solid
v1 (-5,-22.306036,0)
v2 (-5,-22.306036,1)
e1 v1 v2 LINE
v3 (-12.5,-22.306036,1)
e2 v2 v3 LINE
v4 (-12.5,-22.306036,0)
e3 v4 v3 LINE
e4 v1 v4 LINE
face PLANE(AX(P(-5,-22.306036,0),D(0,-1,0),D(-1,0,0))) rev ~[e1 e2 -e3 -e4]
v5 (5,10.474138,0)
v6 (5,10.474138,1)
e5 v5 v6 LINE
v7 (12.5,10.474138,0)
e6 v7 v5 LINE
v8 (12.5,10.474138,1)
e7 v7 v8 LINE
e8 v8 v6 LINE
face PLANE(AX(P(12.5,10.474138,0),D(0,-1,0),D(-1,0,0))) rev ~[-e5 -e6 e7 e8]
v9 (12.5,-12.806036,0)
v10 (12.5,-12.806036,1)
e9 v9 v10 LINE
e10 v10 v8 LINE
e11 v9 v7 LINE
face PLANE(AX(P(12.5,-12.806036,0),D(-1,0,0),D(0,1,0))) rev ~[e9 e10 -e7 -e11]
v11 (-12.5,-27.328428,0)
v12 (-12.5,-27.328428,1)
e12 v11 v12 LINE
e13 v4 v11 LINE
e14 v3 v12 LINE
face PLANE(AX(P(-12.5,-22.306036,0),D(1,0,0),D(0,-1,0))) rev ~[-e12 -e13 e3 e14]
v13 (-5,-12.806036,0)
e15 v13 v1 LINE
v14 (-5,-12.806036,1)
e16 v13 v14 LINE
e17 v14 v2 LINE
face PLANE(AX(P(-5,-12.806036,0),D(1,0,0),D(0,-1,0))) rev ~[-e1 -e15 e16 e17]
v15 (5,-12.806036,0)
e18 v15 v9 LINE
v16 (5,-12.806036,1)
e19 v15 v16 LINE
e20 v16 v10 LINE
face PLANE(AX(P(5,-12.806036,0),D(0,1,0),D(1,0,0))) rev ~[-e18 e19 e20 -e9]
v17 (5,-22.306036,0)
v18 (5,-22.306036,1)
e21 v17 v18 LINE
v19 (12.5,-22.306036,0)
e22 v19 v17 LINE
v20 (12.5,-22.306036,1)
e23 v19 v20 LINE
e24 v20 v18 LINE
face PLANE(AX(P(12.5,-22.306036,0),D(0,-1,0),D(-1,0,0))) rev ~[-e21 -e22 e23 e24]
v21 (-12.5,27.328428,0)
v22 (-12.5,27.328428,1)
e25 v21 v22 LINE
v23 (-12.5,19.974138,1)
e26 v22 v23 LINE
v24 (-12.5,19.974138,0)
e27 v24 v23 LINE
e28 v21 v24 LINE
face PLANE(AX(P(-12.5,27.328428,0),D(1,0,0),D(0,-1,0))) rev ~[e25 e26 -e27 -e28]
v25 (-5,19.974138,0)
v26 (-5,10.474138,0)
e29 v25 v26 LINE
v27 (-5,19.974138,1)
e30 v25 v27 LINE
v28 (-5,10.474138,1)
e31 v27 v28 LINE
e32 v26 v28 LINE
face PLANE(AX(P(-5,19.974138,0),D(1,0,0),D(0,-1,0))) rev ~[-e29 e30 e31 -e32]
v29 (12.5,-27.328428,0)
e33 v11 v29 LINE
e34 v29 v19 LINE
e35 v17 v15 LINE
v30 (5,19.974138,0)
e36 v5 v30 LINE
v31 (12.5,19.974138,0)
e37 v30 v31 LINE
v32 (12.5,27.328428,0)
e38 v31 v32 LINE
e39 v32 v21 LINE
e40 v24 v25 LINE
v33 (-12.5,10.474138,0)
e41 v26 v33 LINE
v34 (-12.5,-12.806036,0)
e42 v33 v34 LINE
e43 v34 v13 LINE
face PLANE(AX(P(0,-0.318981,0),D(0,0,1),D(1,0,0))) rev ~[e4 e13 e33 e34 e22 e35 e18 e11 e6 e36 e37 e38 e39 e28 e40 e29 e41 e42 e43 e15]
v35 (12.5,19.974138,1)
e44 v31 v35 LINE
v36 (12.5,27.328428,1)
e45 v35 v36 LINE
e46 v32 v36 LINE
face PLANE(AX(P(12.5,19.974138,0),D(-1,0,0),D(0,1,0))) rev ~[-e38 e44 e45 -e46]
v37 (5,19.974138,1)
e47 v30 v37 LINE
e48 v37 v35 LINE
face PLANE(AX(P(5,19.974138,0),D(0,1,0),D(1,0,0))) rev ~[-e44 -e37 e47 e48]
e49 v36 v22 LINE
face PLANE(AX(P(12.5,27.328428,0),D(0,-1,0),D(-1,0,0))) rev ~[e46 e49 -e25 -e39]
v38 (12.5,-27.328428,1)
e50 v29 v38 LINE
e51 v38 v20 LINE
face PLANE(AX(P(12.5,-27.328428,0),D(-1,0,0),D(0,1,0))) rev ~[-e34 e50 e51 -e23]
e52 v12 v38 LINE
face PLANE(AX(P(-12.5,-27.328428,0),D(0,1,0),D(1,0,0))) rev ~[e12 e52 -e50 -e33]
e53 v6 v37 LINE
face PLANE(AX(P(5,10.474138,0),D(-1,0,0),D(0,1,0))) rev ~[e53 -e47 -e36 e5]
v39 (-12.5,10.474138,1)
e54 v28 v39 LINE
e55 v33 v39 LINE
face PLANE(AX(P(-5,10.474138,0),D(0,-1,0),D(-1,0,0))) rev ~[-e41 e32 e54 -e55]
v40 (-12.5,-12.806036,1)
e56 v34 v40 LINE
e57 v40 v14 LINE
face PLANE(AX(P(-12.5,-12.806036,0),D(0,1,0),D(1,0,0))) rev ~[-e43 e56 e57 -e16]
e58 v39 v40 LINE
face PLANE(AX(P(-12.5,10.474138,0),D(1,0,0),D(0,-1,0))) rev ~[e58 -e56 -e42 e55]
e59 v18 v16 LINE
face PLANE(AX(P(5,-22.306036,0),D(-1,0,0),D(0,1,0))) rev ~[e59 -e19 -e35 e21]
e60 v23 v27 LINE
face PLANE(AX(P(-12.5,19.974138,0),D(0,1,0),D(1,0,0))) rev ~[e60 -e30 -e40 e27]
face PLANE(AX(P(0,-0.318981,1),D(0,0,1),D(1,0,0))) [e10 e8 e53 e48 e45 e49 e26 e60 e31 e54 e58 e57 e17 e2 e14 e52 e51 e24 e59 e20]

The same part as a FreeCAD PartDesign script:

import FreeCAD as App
import Part
import Sketcher

doc = App.newDocument("Part")
body = doc.addObject("PartDesign::Body", "Body")

# Sketch on XY plane
sketch1 = body.newObject("Sketcher::SketchObject", "Sketch")
sketch1.AttachmentSupport = (doc.getObject("XY_Plane"), [""])
sketch1.MapMode = "FlatFace"
sketch1.addGeometry(Part.LineSegment(App.Vector(-12.5, -27.328428, 0), App.Vector(12.5, -27.328428, 0)), False)
sketch1.addGeometry(Part.LineSegment(App.Vector(12.5, -27.328428, 0), App.Vector(12.5, -22.306036, 0)), False)
sketch1.addGeometry(Part.LineSegment(App.Vector(12.5, -22.306036, 0), App.Vector(5, -22.306036, 0)), False)
sketch1.addGeometry(Part.LineSegment(App.Vector(5, -22.306036, 0), App.Vector(5, -12.806036, 0)), False)
sketch1.addGeometry(Part.LineSegment(App.Vector(5, -12.806036, 0), App.Vector(12.5, -12.806036, 0)), False)
sketch1.addGeometry(Part.LineSegment(App.Vector(12.5, -12.806036, 0), App.Vector(12.5, 10.474138, 0)), False)
sketch1.addGeometry(Part.LineSegment(App.Vector(12.5, 10.474138, 0), App.Vector(5, 10.474138, 0)), False)
sketch1.addGeometry(Part.LineSegment(App.Vector(5, 10.474138, 0), App.Vector(5, 19.974138, 0)), False)
sketch1.addGeometry(Part.LineSegment(App.Vector(5, 19.974138, 0), App.Vector(12.5, 19.974138, 0)), False)
sketch1.addGeometry(Part.LineSegment(App.Vector(12.5, 19.974138, 0), App.Vector(12.5, 27.328428, 0)), False)
sketch1.addGeometry(Part.LineSegment(App.Vector(12.5, 27.328428, 0), App.Vector(-12.5, 27.328428, 0)), False)
sketch1.addGeometry(Part.LineSegment(App.Vector(-12.5, 27.328428, 0), App.Vector(-12.5, 19.974138, 0)), False)
sketch1.addGeometry(Part.LineSegment(App.Vector(-12.5, 19.974138, 0), App.Vector(-5, 19.974138, 0)), False)
sketch1.addGeometry(Part.LineSegment(App.Vector(-5, 19.974138, 0), App.Vector(-5, 10.474138, 0)), False)
sketch1.addGeometry(Part.LineSegment(App.Vector(-5, 10.474138, 0), App.Vector(-12.5, 10.474138, 0)), False)
sketch1.addGeometry(Part.LineSegment(App.Vector(-12.5, 10.474138, 0), App.Vector(-12.5, -12.806036, 0)), False)
sketch1.addGeometry(Part.LineSegment(App.Vector(-12.5, -12.806036, 0), App.Vector(-5, -12.806036, 0)), False)
sketch1.addGeometry(Part.LineSegment(App.Vector(-5, -12.806036, 0), App.Vector(-5, -22.306036, 0)), False)
sketch1.addGeometry(Part.LineSegment(App.Vector(-5, -22.306036, 0), App.Vector(-12.5, -22.306036, 0)), False)
sketch1.addGeometry(Part.LineSegment(App.Vector(-12.5, -22.306036, 0), App.Vector(-12.5, -27.328428, 0)), False)
sketch1.addConstraint(Sketcher.Constraint("Coincident", 0, 2, 1, 1))
sketch1.addConstraint(Sketcher.Constraint("Coincident", 1, 2, 2, 1))
sketch1.addConstraint(Sketcher.Constraint("Coincident", 2, 2, 3, 1))
sketch1.addConstraint(Sketcher.Constraint("Coincident", 3, 2, 4, 1))
sketch1.addConstraint(Sketcher.Constraint("Coincident", 4, 2, 5, 1))
sketch1.addConstraint(Sketcher.Constraint("Coincident", 5, 2, 6, 1))
sketch1.addConstraint(Sketcher.Constraint("Coincident", 6, 2, 7, 1))
sketch1.addConstraint(Sketcher.Constraint("Coincident", 7, 2, 8, 1))
sketch1.addConstraint(Sketcher.Constraint("Coincident", 8, 2, 9, 1))
sketch1.addConstraint(Sketcher.Constraint("Coincident", 9, 2, 10, 1))
sketch1.addConstraint(Sketcher.Constraint("Coincident", 10, 2, 11, 1))
sketch1.addConstraint(Sketcher.Constraint("Coincident", 11, 2, 12, 1))
sketch1.addConstraint(Sketcher.Constraint("Coincident", 12, 2, 13, 1))
sketch1.addConstraint(Sketcher.Constraint("Coincident", 13, 2, 14, 1))
sketch1.addConstraint(Sketcher.Constraint("Coincident", 14, 2, 15, 1))
sketch1.addConstraint(Sketcher.Constraint("Coincident", 15, 2, 16, 1))
sketch1.addConstraint(Sketcher.Constraint("Coincident", 16, 2, 17, 1))
sketch1.addConstraint(Sketcher.Constraint("Coincident", 17, 2, 18, 1))
sketch1.addConstraint(Sketcher.Constraint("Coincident", 18, 2, 19, 1))
sketch1.addConstraint(Sketcher.Constraint("Coincident", 19, 2, 0, 1))
sketch1.addConstraint(Sketcher.Constraint("Horizontal", 0))
sketch1.addConstraint(Sketcher.Constraint("Vertical", 1))
sketch1.addConstraint(Sketcher.Constraint("Horizontal", 2))
sketch1.addConstraint(Sketcher.Constraint("Vertical", 3))
sketch1.addConstraint(Sketcher.Constraint("Horizontal", 4))
sketch1.addConstraint(Sketcher.Constraint("Vertical", 5))
sketch1.addConstraint(Sketcher.Constraint("Horizontal", 6))
sketch1.addConstraint(Sketcher.Constraint("Vertical", 7))
sketch1.addConstraint(Sketcher.Constraint("Horizontal", 8))
sketch1.addConstraint(Sketcher.Constraint("Vertical", 9))
sketch1.addConstraint(Sketcher.Constraint("Horizontal", 10))
sketch1.addConstraint(Sketcher.Constraint("Vertical", 11))
sketch1.addConstraint(Sketcher.Constraint("Horizontal", 12))
sketch1.addConstraint(Sketcher.Constraint("Vertical", 13))
sketch1.addConstraint(Sketcher.Constraint("Horizontal", 14))
sketch1.addConstraint(Sketcher.Constraint("Vertical", 15))
sketch1.addConstraint(Sketcher.Constraint("Horizontal", 16))
sketch1.addConstraint(Sketcher.Constraint("Vertical", 17))
sketch1.addConstraint(Sketcher.Constraint("Horizontal", 18))
sketch1.addConstraint(Sketcher.Constraint("Vertical", 19))
sketch1.addConstraint(Sketcher.Constraint("Symmetric", 0, 2, 10, 2, -1, 1))
sketch1.addConstraint(Sketcher.Constraint("Symmetric", 8, 2, 11, 2, -2))
sketch1.addConstraint(Sketcher.Constraint("Symmetric", 6, 2, 13, 2, -2))
sketch1.addConstraint(Sketcher.Constraint("Symmetric", 4, 2, 15, 2, -2))
sketch1.addConstraint(Sketcher.Constraint("Symmetric", 2, 2, 17, 2, -2))
sketch1.addConstraint(Sketcher.Constraint("Vertical", 1, 2, 4, 2))
sketch1.addConstraint(Sketcher.Constraint("Vertical", 3, 2, 6, 2))
sketch1.addConstraint(Sketcher.Constraint("Vertical", 15, 2, 18, 2))
sketch1.addConstraint(Sketcher.Constraint("Equal", 3, 7))
sketch1.addConstraint(Sketcher.Constraint("DistanceX", 0, 1, 0, 2, 25.0))
sketch1.addConstraint(Sketcher.Constraint("DistanceX", 2, 2, 2, 1, 7.5))
sketch1.addConstraint(Sketcher.Constraint("DistanceY", 3, 1, 3, 2, 9.5))
sketch1.addConstraint(Sketcher.Constraint("DistanceY", 9, 1, 9, 2, 7.35429))
sketch1.addConstraint(Sketcher.Constraint("DistanceY", 1, 1, 1, 2, 5.022392))
sketch1.addConstraint(Sketcher.Constraint("DistanceY", 5, 1, 5, 2, 23.280174))
pad1 = body.newObject("PartDesign::Pad", "Pad")
pad1.Profile = sketch1
pad1.Length = 1

doc.recompute()
